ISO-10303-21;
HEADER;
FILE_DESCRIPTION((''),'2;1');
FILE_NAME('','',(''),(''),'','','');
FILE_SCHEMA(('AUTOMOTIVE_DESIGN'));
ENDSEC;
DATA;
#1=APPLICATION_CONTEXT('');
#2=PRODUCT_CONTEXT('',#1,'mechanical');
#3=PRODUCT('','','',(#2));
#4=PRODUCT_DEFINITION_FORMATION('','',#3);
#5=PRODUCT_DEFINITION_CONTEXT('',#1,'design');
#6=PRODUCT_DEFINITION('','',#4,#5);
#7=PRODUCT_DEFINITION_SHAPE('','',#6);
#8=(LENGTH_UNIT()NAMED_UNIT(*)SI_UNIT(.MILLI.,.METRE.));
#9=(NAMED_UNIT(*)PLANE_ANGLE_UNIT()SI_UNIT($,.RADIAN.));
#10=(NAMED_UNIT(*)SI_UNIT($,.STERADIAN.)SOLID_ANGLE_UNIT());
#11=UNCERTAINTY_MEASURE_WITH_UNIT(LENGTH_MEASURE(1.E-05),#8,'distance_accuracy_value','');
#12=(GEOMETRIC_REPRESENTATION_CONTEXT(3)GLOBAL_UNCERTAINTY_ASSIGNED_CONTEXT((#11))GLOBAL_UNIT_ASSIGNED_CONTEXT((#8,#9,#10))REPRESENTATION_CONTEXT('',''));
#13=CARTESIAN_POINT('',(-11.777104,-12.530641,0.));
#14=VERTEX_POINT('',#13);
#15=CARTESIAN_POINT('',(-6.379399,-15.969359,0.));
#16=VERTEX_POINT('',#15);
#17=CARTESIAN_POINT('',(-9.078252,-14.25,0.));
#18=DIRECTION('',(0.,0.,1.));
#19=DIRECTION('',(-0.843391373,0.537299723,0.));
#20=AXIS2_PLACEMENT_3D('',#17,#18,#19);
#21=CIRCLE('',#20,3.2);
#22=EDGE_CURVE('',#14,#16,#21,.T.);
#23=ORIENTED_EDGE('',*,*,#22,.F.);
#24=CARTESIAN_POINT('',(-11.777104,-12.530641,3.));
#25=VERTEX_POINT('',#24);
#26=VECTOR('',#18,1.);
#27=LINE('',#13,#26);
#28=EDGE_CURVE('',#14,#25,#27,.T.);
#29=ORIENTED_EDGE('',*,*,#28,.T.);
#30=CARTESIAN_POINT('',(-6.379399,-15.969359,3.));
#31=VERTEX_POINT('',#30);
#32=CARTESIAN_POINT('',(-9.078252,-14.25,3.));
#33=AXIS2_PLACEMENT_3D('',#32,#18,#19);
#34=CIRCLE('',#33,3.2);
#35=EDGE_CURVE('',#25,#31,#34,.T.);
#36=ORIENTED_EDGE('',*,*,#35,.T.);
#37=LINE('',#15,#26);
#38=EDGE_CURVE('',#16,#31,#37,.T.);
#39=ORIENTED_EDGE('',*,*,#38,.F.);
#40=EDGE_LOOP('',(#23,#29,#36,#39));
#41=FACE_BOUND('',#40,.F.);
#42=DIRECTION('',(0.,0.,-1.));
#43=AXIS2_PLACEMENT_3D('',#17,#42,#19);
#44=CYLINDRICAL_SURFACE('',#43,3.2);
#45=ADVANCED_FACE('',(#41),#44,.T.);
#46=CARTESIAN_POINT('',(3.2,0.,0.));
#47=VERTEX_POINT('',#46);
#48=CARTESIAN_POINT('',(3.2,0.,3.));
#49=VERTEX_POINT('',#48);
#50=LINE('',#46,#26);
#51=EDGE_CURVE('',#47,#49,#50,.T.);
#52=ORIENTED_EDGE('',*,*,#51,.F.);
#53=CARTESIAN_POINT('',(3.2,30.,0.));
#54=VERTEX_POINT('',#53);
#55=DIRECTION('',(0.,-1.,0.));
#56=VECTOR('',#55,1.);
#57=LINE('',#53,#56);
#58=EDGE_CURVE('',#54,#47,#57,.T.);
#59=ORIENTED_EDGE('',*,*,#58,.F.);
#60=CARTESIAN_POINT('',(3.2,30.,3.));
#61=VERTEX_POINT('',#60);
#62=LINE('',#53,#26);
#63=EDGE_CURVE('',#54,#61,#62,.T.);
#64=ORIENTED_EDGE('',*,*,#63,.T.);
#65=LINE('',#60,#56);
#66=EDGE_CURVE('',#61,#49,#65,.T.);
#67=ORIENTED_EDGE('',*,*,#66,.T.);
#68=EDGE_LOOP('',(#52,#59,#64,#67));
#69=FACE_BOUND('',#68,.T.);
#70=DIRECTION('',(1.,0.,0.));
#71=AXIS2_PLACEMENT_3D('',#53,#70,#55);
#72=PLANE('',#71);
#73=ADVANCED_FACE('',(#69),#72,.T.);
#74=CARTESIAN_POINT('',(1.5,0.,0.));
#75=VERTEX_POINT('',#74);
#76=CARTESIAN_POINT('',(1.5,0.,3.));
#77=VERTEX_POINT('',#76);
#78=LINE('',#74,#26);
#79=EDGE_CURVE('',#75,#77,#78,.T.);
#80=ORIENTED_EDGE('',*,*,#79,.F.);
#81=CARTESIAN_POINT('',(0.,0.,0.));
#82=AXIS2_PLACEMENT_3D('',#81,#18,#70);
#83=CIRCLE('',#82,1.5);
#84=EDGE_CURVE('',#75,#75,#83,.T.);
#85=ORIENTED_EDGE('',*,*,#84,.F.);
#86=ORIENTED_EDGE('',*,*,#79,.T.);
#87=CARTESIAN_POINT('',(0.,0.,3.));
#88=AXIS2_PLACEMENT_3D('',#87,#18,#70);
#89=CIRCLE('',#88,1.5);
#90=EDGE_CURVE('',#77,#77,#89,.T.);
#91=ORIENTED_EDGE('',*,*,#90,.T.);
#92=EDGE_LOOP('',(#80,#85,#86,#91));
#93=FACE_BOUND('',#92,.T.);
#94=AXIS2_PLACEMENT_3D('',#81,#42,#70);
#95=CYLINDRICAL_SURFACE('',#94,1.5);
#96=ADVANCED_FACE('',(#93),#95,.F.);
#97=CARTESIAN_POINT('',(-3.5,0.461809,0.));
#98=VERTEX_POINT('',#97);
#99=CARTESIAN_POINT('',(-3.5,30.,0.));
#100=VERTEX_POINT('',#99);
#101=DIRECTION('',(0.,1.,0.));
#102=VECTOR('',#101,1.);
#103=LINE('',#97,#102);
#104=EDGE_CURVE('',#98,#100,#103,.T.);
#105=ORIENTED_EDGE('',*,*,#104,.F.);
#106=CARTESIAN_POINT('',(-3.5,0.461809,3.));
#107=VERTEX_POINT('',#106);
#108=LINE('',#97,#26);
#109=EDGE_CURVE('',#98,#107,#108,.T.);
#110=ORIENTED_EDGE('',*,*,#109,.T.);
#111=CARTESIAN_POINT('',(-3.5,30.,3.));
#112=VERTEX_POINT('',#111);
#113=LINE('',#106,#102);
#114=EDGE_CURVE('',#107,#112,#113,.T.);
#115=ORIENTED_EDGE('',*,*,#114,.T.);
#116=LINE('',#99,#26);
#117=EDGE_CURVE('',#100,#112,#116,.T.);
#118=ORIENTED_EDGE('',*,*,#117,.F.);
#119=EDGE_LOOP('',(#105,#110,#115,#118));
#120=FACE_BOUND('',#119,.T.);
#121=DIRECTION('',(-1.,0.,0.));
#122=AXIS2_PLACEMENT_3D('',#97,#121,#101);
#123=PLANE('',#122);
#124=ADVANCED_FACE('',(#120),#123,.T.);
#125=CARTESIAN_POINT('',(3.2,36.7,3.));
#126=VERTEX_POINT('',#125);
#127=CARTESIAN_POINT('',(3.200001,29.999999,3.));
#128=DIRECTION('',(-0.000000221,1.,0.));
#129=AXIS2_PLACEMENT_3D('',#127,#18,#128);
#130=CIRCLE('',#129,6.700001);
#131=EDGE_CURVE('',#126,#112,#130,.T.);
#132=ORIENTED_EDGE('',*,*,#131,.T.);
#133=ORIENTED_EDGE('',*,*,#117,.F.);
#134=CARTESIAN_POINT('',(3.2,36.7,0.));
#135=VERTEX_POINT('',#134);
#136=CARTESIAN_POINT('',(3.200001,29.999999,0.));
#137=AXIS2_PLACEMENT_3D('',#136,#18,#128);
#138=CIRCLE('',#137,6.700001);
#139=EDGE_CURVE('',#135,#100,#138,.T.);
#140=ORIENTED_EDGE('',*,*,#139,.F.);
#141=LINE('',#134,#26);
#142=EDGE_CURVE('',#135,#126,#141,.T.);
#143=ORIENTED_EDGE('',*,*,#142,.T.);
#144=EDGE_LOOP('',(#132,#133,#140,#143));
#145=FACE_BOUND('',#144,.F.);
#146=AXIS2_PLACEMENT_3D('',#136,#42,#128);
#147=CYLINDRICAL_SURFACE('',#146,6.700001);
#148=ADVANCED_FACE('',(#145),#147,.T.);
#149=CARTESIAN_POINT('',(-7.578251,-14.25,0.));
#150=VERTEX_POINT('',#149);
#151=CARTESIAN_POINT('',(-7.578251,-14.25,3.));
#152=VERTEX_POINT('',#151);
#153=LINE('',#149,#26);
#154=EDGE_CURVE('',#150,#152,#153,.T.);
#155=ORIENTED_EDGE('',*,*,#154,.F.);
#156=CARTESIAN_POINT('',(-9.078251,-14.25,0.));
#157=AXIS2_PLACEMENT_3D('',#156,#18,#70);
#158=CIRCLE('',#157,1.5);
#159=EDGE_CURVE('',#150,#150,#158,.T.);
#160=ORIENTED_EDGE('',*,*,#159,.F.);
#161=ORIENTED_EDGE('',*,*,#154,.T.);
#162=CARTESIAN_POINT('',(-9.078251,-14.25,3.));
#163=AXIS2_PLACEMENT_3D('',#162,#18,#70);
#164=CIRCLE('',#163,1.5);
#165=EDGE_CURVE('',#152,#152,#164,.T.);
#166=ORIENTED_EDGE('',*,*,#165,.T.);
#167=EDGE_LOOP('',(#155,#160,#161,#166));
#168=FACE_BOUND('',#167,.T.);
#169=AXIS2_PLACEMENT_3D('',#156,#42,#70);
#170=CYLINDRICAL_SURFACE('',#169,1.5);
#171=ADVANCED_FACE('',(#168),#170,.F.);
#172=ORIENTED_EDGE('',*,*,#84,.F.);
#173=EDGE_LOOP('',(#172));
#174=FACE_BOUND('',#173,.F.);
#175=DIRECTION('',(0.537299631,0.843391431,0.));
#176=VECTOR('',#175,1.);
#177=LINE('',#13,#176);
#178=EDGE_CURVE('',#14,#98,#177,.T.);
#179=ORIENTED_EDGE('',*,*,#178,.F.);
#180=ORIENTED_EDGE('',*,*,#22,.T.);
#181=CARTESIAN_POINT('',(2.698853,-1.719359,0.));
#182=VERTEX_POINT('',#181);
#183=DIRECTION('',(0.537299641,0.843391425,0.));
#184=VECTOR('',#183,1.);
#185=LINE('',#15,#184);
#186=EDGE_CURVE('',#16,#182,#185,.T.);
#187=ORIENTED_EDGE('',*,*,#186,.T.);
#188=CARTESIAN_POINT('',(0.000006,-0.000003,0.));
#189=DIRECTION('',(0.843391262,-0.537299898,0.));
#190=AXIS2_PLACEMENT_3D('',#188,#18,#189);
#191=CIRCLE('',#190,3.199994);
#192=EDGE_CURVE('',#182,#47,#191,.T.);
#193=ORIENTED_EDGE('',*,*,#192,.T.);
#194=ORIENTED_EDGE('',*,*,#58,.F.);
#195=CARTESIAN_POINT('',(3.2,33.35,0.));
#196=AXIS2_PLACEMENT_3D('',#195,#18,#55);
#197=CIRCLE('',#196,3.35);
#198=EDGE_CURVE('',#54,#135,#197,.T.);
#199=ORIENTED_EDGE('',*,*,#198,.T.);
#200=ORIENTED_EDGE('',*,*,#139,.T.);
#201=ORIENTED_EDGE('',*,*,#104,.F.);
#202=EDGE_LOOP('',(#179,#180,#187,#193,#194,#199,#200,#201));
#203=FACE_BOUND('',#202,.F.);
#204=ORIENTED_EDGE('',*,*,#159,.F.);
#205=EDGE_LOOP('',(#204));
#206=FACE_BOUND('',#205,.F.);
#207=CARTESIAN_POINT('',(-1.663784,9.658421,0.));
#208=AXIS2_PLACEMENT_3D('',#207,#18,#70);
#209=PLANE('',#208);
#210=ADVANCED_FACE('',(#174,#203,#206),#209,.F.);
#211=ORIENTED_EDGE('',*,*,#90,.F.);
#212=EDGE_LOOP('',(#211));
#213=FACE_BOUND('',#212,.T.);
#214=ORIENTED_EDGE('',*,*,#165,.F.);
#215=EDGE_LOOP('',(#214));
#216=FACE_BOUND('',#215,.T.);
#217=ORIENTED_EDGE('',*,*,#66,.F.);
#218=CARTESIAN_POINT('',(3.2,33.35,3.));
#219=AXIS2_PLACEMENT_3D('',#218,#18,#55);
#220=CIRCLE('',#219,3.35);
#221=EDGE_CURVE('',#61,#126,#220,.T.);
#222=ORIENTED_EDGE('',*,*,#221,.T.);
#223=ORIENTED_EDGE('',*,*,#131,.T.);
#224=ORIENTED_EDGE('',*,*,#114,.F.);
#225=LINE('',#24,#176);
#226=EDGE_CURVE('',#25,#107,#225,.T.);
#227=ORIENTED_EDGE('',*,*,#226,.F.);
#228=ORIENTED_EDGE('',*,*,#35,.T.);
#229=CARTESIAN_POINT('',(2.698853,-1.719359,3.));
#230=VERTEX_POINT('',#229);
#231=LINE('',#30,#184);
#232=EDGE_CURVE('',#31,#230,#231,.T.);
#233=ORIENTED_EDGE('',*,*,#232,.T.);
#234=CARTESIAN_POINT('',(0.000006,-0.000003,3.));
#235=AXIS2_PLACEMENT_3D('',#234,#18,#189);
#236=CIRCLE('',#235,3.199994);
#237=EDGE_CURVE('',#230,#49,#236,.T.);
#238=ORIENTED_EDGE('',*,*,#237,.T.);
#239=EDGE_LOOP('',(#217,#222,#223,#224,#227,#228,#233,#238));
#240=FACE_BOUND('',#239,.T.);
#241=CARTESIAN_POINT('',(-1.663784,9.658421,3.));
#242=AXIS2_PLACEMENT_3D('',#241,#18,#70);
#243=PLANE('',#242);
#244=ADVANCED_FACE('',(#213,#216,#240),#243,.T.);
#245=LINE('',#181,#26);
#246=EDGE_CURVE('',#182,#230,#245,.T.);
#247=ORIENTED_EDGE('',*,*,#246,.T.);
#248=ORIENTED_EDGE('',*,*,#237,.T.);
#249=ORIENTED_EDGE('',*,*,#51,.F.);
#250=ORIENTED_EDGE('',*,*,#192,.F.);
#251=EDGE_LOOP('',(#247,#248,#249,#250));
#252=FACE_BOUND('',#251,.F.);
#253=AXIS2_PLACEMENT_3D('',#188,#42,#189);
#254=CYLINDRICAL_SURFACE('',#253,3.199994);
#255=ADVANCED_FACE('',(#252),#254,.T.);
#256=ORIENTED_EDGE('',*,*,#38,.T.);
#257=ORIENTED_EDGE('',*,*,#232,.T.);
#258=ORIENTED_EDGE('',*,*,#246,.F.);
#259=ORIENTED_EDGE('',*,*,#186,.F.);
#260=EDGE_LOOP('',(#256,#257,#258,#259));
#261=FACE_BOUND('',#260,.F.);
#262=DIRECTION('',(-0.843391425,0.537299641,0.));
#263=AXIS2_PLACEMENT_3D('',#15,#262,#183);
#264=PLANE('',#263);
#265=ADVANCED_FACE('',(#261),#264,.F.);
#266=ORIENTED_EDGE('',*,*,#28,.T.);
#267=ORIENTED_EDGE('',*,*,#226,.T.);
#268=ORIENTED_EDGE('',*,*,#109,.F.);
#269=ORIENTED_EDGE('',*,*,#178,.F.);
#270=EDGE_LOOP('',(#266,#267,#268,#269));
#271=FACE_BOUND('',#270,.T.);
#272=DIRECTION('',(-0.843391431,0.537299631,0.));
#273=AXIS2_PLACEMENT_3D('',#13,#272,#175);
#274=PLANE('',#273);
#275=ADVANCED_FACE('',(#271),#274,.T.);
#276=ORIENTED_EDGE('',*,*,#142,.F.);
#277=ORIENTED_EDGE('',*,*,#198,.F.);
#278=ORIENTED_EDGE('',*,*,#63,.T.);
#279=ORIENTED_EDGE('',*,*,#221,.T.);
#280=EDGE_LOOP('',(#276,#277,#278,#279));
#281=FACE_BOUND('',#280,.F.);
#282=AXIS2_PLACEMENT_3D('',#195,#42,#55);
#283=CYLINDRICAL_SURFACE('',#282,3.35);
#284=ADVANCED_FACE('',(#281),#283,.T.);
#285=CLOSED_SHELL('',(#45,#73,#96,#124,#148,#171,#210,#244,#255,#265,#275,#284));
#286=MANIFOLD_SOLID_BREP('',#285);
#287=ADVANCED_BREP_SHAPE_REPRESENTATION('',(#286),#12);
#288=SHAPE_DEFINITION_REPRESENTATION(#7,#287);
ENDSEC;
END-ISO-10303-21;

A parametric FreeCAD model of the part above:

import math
import FreeCAD as App
import Part
import Sketcher
from FreeCAD import Vector
Q = App.Units.Quantity

doc = App.newDocument("Part")
body = doc.addObject("PartDesign::Body", "Body")

# Sketch on XY plane
sketch1 = body.newObject("Sketcher::SketchObject", "Sketch")
sketch1.AttachmentSupport = (doc.getObject("XY_Plane"), [""])
sketch1.MapMode = "FlatFace"
sketch1.addGeometry([
    Part.ArcOfCircle(Part.Circle(Vector(-9.1, -14.3, 0), Vector(0, 0, 1), 3.2), math.radians(147), math.radians(327)),  # 0
    Part.LineSegment(Vector(-6.4, -16, 0), Vector(2.7, -1.7, 0)),  # 1
    Part.ArcOfCircle(Part.Circle(Vector(0, 0, 0), Vector(0, 0, 1), 3.2), math.radians(-33), math.radians(0)),  # 2
    Part.LineSegment(Vector(3.2, 0, 0), Vector(3.2, 30, 0)),  # 3
    Part.ArcOfCircle(Part.Circle(Vector(3.2, 33.4, 0), Vector(0, 0, 1), 3.4), math.radians(-90), math.radians(90)),  # 4
    Part.ArcOfCircle(Part.Circle(Vector(3.2, 30, 0), Vector(0, 0, 1), 6.7), math.radians(90), math.radians(180)),  # 5
    Part.LineSegment(Vector(-3.5, 30, 0), Vector(-3.5, 0.5, 0)),  # 6
    Part.LineSegment(Vector(-3.5, 0.5, 0), Vector(-11.8, -12.5, 0)),  # 7
    Part.Circle(Vector(-9.1, -14.2, 0), Vector(0, 0, 1), 1.5),  # 8
    Part.Circle(Vector(0, 0, 0), Vector(0, 0, 1), 1.5),  # 9
], False)
sketch1.addConstraint([
    Sketcher.Constraint("Tangent", 0, 2, 1, 1),
    Sketcher.Constraint("Tangent", 1, 2, 2, 1),
    Sketcher.Constraint("Tangent", 2, 2, 3, 1),
    Sketcher.Constraint("Coincident", 3, 2, 4, 1),
    Sketcher.Constraint("Tangent", 4, 2, 5, 1),
    Sketcher.Constraint("Tangent", 5, 2, 6, 1),
    Sketcher.Constraint("Coincident", 6, 2, 7, 1),
    Sketcher.Constraint("Tangent", 7, 2, 0, 1),
    Sketcher.Constraint("Vertical", 3),
    Sketcher.Constraint("Vertical", 6),
    Sketcher.Constraint("Coincident", 2, 3, -1, 1),
    Sketcher.Constraint("Coincident", 9, 3, -1, 1),
    Sketcher.Constraint("Coincident", 8, 3, 0, 3),
    Sketcher.Constraint("Coincident", 3, 2, 5, 3),
    Sketcher.Constraint("Equal", 8, 9),
    Sketcher.Constraint("Parallel", 1, 7),
    Sketcher.Constraint("Vertical", 4, 3, 5, 3),
    Sketcher.Constraint("Diameter", 8, Q("3 mm")),
    Sketcher.Constraint("Radius", 0, Q("3.2 mm")),
    Sketcher.Constraint("Radius", 5, Q("6.700001 mm")),
    Sketcher.Constraint("DistanceY", 3, 1, 3, 2, Q("30 mm")),
    Sketcher.Constraint("Angle", 1, Q("57.499998 deg")),
    Sketcher.Constraint("DistanceX", -1, 1, 4, 3, Q("3.2 mm")),
    Sketcher.Constraint("DistanceY", 0, 3, 4, 3, Q("47.6 mm")),
])
pad1 = body.newObject("PartDesign::Pad", "Pad")
pad1.Profile = sketch1
pad1.Length = 3

doc.recompute()
